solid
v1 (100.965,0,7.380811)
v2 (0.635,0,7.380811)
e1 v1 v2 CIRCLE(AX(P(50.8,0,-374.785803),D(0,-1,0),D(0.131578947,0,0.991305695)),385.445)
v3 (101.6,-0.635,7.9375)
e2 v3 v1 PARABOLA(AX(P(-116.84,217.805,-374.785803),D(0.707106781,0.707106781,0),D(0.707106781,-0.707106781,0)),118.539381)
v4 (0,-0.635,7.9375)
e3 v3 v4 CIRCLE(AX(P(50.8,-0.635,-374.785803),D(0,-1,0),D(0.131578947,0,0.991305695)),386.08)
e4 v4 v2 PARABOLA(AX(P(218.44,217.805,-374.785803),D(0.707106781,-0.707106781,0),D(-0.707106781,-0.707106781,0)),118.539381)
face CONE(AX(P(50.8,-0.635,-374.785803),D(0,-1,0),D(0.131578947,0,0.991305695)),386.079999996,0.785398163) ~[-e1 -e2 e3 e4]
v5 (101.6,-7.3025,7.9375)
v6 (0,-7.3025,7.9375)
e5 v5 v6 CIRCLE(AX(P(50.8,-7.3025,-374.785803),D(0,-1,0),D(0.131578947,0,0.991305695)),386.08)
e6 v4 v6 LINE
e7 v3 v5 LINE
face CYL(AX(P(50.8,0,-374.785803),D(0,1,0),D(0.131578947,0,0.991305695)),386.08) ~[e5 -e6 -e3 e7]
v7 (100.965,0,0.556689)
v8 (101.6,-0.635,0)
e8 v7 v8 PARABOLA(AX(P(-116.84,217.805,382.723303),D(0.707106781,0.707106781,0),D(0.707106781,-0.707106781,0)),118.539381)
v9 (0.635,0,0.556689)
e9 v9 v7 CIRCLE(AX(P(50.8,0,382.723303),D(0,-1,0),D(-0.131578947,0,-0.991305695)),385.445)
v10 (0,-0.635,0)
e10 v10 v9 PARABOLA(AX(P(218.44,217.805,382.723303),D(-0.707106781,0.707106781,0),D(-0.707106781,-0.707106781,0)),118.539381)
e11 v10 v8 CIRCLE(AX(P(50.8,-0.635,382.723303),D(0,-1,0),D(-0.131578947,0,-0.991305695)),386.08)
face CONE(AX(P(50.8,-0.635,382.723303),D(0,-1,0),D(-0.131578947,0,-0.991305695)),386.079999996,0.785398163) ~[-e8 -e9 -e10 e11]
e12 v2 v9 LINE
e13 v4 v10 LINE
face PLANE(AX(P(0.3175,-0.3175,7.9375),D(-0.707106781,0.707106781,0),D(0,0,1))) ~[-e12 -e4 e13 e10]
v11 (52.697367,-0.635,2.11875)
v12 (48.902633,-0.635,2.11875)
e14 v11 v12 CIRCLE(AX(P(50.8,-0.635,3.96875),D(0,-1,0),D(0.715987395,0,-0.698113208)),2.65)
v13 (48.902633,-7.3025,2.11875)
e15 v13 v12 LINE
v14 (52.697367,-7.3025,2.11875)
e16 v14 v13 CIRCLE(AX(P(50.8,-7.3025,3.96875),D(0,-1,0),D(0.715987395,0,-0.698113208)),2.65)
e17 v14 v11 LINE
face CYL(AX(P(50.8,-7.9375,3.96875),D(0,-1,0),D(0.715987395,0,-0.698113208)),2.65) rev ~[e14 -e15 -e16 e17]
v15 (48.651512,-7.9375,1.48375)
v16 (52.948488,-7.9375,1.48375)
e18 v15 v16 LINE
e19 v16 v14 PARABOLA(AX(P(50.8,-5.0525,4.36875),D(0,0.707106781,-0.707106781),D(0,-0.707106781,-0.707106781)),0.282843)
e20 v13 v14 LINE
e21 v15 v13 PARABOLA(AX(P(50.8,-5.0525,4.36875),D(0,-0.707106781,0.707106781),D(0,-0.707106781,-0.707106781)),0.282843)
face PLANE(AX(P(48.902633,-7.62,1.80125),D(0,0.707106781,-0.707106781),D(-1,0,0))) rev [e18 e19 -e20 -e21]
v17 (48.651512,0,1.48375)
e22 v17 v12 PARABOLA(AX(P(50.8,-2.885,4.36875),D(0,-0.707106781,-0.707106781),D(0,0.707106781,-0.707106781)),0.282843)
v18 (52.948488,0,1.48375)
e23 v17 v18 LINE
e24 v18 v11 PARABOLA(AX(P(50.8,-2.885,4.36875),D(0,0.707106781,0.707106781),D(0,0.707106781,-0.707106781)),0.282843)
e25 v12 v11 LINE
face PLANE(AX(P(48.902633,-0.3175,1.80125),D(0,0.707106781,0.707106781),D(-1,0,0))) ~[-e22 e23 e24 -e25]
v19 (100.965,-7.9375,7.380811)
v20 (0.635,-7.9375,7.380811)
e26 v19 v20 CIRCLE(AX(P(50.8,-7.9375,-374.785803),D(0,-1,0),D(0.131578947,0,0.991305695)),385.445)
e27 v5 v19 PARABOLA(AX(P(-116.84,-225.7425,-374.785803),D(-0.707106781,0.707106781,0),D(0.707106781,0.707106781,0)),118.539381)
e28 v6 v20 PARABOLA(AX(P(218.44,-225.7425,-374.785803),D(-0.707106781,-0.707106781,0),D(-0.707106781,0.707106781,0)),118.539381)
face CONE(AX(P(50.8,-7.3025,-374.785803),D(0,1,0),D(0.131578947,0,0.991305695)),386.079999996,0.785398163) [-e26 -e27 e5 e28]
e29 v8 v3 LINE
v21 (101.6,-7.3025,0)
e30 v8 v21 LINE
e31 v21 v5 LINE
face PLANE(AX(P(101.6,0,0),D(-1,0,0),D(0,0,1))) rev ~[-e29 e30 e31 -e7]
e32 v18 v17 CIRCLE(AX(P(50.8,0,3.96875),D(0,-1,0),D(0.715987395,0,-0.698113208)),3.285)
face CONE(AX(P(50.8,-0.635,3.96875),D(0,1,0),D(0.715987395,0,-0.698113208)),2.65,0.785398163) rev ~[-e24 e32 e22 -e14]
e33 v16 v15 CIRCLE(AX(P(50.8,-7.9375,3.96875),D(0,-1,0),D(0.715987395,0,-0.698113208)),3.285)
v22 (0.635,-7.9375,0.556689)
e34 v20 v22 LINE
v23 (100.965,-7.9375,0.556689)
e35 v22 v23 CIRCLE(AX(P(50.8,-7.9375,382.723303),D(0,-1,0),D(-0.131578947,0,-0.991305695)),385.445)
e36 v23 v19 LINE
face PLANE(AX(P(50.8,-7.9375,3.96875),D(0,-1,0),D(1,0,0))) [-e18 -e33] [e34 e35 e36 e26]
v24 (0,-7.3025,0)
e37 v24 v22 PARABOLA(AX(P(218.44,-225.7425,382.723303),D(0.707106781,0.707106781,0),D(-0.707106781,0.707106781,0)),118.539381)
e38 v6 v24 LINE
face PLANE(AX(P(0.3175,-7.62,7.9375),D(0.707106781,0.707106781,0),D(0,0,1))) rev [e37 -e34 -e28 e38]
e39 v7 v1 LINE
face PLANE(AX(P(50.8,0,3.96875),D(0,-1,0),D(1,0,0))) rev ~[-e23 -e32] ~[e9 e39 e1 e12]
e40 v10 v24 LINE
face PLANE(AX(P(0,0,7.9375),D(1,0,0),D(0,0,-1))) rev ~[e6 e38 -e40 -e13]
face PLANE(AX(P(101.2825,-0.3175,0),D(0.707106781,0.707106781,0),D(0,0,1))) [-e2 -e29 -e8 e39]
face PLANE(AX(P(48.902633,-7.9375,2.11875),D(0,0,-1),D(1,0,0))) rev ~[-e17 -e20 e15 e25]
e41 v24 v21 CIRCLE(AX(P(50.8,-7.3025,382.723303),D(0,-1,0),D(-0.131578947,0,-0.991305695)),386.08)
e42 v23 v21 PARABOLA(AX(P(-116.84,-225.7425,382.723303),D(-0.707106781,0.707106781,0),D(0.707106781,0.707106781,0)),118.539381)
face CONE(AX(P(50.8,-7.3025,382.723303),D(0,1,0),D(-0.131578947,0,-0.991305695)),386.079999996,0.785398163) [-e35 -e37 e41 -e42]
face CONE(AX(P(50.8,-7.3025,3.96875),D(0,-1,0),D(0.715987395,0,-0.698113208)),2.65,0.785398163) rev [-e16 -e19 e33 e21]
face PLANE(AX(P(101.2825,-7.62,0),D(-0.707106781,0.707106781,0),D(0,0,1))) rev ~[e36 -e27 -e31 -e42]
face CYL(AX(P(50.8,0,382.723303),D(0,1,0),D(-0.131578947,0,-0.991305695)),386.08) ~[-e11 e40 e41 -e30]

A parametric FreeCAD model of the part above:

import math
import FreeCAD as App
import Part
import Sketcher
Q = App.Units.Quantity


def edges_at(feature, points):
    """Names of the edges that pass closest to the given points."""
    edges = feature.Shape.Edges
    near = lambda p: min(range(len(edges)), key=lambda i: edges[i].distToShape(Part.Vertex(*p))[0])
    return sorted({f"Edge{near(p) + 1}" for p in points})

doc = App.newDocument("Part")
body = doc.addObject("PartDesign::Body", "Body")

sketch1 = body.newObject("Sketcher::SketchObject", "Sketch")
sketch1.AttachmentSupport = (doc.getObject("XZ_Plane"), [""])
sketch1.MapMode = "FlatFace"
sketch1.addGeometry([
    Part.LineSegment(App.Vector(0, 8, 0), App.Vector(0, 0, 0)),
    Part.ArcOfCircle(Part.Circle(App.Vector(51, 383, 0), App.Vector(0, 0, 1), 386), math.radians(-97.56), math.radians(-82.44)),
    Part.LineSegment(App.Vector(102, 0, 0), App.Vector(102, 8, 0)),
    Part.ArcOfCircle(Part.Circle(App.Vector(51, -375, 0), App.Vector(0, 0, 1), 386), math.radians(82.44), math.radians(97.56)),
], False)
sketch1.addConstraint([
    Sketcher.Constraint("Coincident", 0, 2, 1, 1),
    Sketcher.Constraint("Coincident", 1, 2, 2, 1),
    Sketcher.Constraint("Coincident", 2, 2, 3, 1),
    Sketcher.Constraint("Coincident", 3, 2, 0, 1),
    Sketcher.Constraint("Vertical", 0),
    Sketcher.Constraint("Vertical", 2),
    Sketcher.Constraint("Coincident", 0, 2, -1, 1),
    Sketcher.Constraint("Equal", 1, 3),
    Sketcher.Constraint("PointOnObject", 1, 2, -1),
    Sketcher.Constraint("Horizontal", 2, 2, 3, 2),
    Sketcher.Constraint("Radius", 1, Q("15.2 in")),
    Sketcher.Constraint("DistanceX", -1, 1, 1, 3, Q("2 in")),
    Sketcher.Constraint("DistanceY", 0, 2, 0, 1, Q("0.3125 in")),
])
pad1 = body.newObject("PartDesign::Pad", "Pad")
pad1.Profile = sketch1
pad1.Length = Q("0.3125 in")

sketch2 = body.newObject("Sketcher::SketchObject", "Sketch001")
sketch2.AttachmentSupport = (doc.getObject("XZ_Plane"), [""])
sketch2.MapMode = "FlatFace"
sketch2.AttachmentOffset = App.Placement(App.Vector(0, 0, 0.3125 * 25.4), App.Rotation())
sketch2.addGeometry([
    Part.LineSegment(App.Vector(48.9, 2.1, 0), App.Vector(52.7, 2.1, 0)),
    Part.ArcOfCircle(Part.Circle(App.Vector(50.8, 4, 0), App.Vector(0, 0, 1), 2.6), math.radians(-44), math.radians(224)),
], False)
sketch2.addConstraint([
    Sketcher.Constraint("Coincident", 0, 1, 1, 2),
    Sketcher.Constraint("Coincident", 1, 1, 0, 2),
    Sketcher.Constraint("Horizontal", 0),
    Sketcher.Constraint("DistanceX", -1, 1, 1, 3, Q("2 in")),
    Sketcher.Constraint("Radius", 1, Q("2.65 mm")),
    Sketcher.Constraint("DistanceY", -1, 1, 1, 3, Q("0.15625 in")),
    Sketcher.Constraint("DistanceY", 0, 1, 1, 3, Q("1.85 mm")),
])
pocket1 = body.newObject("PartDesign::Pocket", "Pocket")
pocket1.Profile = sketch2
pocket1.Type = "ThroughAll"
doc.recompute()

chamfer = body.newObject("PartDesign::Chamfer", "Chamfer")
chamfer.Base = (pocket1, edges_at(pocket1, [
    (50.8, -7.938, 11.294),
    (101.6, -7.938, 3.969),
    (0, -7.938, 3.969),
    (50.8, -7.938, -3.357),
    (50.8, -7.938, 2.119),
    (50.8, -7.938, 6.619),
    (50.8, 0, 11.294),
    (101.6, 0, 3.969),
    (0, 0, 3.969),
    (50.8, 0, -3.357),
    (50.8, 0, 2.119),
    (50.8, 0, 6.619),
]))
chamfer.Size = Q("0.025 in")

doc.recompute()
